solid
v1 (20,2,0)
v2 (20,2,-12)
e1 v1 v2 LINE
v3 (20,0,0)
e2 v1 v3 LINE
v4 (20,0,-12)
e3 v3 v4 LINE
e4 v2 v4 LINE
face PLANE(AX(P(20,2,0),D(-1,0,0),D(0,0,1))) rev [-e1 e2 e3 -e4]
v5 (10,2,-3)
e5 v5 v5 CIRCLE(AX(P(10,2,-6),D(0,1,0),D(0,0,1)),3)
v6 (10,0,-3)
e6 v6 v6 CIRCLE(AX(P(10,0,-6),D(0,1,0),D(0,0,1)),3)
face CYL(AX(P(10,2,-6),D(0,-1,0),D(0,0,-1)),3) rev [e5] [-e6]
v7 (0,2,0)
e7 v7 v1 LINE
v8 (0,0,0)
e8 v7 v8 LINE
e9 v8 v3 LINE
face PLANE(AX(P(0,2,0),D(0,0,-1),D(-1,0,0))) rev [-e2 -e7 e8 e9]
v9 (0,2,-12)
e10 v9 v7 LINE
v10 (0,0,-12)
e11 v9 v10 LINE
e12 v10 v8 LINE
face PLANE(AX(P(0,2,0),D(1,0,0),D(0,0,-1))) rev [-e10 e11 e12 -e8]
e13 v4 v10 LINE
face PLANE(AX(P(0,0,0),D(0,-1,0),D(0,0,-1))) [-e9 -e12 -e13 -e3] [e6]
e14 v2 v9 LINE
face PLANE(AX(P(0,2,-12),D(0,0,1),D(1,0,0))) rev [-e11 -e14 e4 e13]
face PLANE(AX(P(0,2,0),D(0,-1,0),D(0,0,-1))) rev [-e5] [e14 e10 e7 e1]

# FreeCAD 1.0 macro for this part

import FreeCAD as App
import Part
import Sketcher

V = App.Vector

doc = App.newDocument("Part")
body = doc.addObject("PartDesign::Body", "Body")

sketch1 = doc.addObject("Sketcher::SketchObject", "Sketch")
body.addObject(sketch1)
sketch1.AttachmentSupport = (doc.XZ_Plane, [""])
sketch1.MapMode = "FlatFace"
sketch1.addGeometry([
    Part.LineSegment(V(0, -12, 0), V(0, 0, 0)),
    Part.LineSegment(V(0, 0, 0), V(20, 0, 0)),
    Part.LineSegment(V(20, 0, 0), V(20, -12, 0)),
    Part.LineSegment(V(20, -12, 0), V(0, -12, 0)),
    Part.Circle(V(10, -6, 0), V(0, 0, 1), 3),
], False)
sketch1.addConstraint([
    Sketcher.Constraint("Coincident", 0, 2, 1, 1),
    Sketcher.Constraint("Coincident", 1, 2, 2, 1),
    Sketcher.Constraint("Coincident", 2, 2, 3, 1),
    Sketcher.Constraint("Coincident", 3, 2, 0, 1),
    Sketcher.Constraint("Vertical", 0),
    Sketcher.Constraint("Horizontal", 1),
    Sketcher.Constraint("Vertical", 2),
    Sketcher.Constraint("Horizontal", 3),
    Sketcher.Constraint("Coincident", 0, 2, -1, 1),
    Sketcher.Constraint("Diameter", 4, 6.0),
    Sketcher.Constraint("DistanceX", 1, 1, 1, 2, 20.0),
    Sketcher.Constraint("DistanceY", 0, 1, 0, 2, 12.0),
    Sketcher.Constraint("DistanceX", -1, 1, 4, 3, 10.0),
    Sketcher.Constraint("DistanceY", 4, 3, -1, 1, 6.0),
])
pad1 = doc.addObject("PartDesign::Pad", "Pad")
body.addObject(pad1)
pad1.Profile = sketch1
pad1.Length = 2
pad1.Reversed = True

doc.recompute()
